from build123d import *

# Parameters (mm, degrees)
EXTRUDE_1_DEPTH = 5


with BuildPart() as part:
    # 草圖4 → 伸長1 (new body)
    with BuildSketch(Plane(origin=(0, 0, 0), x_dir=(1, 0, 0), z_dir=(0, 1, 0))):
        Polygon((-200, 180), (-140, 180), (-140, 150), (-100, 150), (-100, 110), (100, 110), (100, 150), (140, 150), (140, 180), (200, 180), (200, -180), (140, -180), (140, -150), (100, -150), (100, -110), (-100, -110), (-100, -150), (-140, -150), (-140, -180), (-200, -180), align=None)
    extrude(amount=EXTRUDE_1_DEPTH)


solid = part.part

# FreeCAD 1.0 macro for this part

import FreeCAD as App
import Part
import Sketcher
Q = App.Units.Quantity


def add_polygon(sketch, points):
    """Adds a closed chain of lines whose ends are joined by coincident constraints."""
    first, n = sketch.GeometryCount, len(points)
    for a, b in zip(points, points[1:] + points[:1]):
        sketch.addGeometry(Part.LineSegment(App.Vector(*a, 0), App.Vector(*b, 0)), False)
    for i in range(n):
        sketch.addConstraint(Sketcher.Constraint("Coincident", first + i, 2, first + (i + 1) % n, 1))

doc = App.newDocument("Part")
body = doc.addObject("PartDesign::Body", "Body")

sketch1 = doc.addObject("Sketcher::SketchObject", "Sketch")
body.addObject(sketch1)
sketch1.AttachmentSupport = (doc.XZ_Plane, [""])
sketch1.MapMode = "FlatFace"
add_polygon(sketch1, [(-140, -180), (-200, -180), (-200, 180), (-140, 180), (-140, 150), (-100, 150), (-100, 110), (100, 110), (100, 150), (140, 150), (140, 180), (200, 180), (200, -180), (140, -180), (140, -150), (100, -150), (100, -110), (-100, -110), (-100, -150), (-140, -150)])
sketch1.addConstraint(Sketcher.Constraint("Horizontal", 0))
sketch1.addConstraint(Sketcher.Constraint("Vertical", 1))
sketch1.addConstraint(Sketcher.Constraint("Horizontal", 2))
sketch1.addConstraint(Sketcher.Constraint("Vertical", 3))
sketch1.addConstraint(Sketcher.Constraint("Horizontal", 4))
sketch1.addConstraint(Sketcher.Constraint("Vertical", 5))
sketch1.addConstraint(Sketcher.Constraint("Horizontal", 6))
sketch1.addConstraint(Sketcher.Constraint("Vertical", 7))
sketch1.addConstraint(Sketcher.Constraint("Horizontal", 8))
sketch1.addConstraint(Sketcher.Constraint("Vertical", 9))
sketch1.addConstraint(Sketcher.Constraint("Horizontal", 10))
sketch1.addConstraint(Sketcher.Constraint("Vertical", 11))
sketch1.addConstraint(Sketcher.Constraint("Horizontal", 12))
sketch1.addConstraint(Sketcher.Constraint("Vertical", 13))
sketch1.addConstraint(Sketcher.Constraint("Horizontal", 14))
sketch1.addConstraint(Sketcher.Constraint("Vertical", 15))
sketch1.addConstraint(Sketcher.Constraint("Horizontal", 16))
sketch1.addConstraint(Sketcher.Constraint("Vertical", 17))
sketch1.addConstraint(Sketcher.Constraint("Horizontal", 18))
sketch1.addConstraint(Sketcher.Constraint("Vertical", 19))
sketch1.addConstraint(Sketcher.Constraint("Symmetric", 0, 2, 10, 2, -1, 1))
sketch1.addConstraint(Sketcher.Constraint("Symmetric", 2, 2, 12, 2, -1, 1))
sketch1.addConstraint(Sketcher.Constraint("Symmetric", 4, 2, 14, 2, -1, 1))
sketch1.addConstraint(Sketcher.Constraint("Symmetric", 6, 2, 16, 2, -1, 1))
sketch1.addConstraint(Sketcher.Constraint("Symmetric", 8, 2, 18, 2, -1, 1))
sketch1.addConstraint(Sketcher.Constraint("Symmetric", 4, 2, 7, 2, -2))
sketch1.addConstraint(Sketcher.Constraint("Symmetric", 2, 2, 9, 2, -2))
sketch1.addConstraint(Sketcher.Constraint("Equal", 18, 5))
sketch1.addConstraint(Sketcher.Constraint("DistanceX", 0, 2, 0, 1, Q("60 mm")))
sketch1.addConstraint(Sketcher.Constraint("DistanceX", 4, 1, 4, 2, Q("40 mm")))
sketch1.addConstraint(Sketcher.Constraint("DistanceX", 6, 1, 6, 2, Q("200 mm")))
sketch1.addConstraint(Sketcher.Constraint("DistanceY", 1, 1, 1, 2, Q("360 mm")))
sketch1.addConstraint(Sketcher.Constraint("DistanceY", 3, 2, 3, 1, Q("30 mm")))
pad1 = doc.addObject("PartDesign::Pad", "Pad")
body.addObject(pad1)
pad1.Profile = sketch1
pad1.Length = 5
pad1.Reversed = True

doc.recompute()
